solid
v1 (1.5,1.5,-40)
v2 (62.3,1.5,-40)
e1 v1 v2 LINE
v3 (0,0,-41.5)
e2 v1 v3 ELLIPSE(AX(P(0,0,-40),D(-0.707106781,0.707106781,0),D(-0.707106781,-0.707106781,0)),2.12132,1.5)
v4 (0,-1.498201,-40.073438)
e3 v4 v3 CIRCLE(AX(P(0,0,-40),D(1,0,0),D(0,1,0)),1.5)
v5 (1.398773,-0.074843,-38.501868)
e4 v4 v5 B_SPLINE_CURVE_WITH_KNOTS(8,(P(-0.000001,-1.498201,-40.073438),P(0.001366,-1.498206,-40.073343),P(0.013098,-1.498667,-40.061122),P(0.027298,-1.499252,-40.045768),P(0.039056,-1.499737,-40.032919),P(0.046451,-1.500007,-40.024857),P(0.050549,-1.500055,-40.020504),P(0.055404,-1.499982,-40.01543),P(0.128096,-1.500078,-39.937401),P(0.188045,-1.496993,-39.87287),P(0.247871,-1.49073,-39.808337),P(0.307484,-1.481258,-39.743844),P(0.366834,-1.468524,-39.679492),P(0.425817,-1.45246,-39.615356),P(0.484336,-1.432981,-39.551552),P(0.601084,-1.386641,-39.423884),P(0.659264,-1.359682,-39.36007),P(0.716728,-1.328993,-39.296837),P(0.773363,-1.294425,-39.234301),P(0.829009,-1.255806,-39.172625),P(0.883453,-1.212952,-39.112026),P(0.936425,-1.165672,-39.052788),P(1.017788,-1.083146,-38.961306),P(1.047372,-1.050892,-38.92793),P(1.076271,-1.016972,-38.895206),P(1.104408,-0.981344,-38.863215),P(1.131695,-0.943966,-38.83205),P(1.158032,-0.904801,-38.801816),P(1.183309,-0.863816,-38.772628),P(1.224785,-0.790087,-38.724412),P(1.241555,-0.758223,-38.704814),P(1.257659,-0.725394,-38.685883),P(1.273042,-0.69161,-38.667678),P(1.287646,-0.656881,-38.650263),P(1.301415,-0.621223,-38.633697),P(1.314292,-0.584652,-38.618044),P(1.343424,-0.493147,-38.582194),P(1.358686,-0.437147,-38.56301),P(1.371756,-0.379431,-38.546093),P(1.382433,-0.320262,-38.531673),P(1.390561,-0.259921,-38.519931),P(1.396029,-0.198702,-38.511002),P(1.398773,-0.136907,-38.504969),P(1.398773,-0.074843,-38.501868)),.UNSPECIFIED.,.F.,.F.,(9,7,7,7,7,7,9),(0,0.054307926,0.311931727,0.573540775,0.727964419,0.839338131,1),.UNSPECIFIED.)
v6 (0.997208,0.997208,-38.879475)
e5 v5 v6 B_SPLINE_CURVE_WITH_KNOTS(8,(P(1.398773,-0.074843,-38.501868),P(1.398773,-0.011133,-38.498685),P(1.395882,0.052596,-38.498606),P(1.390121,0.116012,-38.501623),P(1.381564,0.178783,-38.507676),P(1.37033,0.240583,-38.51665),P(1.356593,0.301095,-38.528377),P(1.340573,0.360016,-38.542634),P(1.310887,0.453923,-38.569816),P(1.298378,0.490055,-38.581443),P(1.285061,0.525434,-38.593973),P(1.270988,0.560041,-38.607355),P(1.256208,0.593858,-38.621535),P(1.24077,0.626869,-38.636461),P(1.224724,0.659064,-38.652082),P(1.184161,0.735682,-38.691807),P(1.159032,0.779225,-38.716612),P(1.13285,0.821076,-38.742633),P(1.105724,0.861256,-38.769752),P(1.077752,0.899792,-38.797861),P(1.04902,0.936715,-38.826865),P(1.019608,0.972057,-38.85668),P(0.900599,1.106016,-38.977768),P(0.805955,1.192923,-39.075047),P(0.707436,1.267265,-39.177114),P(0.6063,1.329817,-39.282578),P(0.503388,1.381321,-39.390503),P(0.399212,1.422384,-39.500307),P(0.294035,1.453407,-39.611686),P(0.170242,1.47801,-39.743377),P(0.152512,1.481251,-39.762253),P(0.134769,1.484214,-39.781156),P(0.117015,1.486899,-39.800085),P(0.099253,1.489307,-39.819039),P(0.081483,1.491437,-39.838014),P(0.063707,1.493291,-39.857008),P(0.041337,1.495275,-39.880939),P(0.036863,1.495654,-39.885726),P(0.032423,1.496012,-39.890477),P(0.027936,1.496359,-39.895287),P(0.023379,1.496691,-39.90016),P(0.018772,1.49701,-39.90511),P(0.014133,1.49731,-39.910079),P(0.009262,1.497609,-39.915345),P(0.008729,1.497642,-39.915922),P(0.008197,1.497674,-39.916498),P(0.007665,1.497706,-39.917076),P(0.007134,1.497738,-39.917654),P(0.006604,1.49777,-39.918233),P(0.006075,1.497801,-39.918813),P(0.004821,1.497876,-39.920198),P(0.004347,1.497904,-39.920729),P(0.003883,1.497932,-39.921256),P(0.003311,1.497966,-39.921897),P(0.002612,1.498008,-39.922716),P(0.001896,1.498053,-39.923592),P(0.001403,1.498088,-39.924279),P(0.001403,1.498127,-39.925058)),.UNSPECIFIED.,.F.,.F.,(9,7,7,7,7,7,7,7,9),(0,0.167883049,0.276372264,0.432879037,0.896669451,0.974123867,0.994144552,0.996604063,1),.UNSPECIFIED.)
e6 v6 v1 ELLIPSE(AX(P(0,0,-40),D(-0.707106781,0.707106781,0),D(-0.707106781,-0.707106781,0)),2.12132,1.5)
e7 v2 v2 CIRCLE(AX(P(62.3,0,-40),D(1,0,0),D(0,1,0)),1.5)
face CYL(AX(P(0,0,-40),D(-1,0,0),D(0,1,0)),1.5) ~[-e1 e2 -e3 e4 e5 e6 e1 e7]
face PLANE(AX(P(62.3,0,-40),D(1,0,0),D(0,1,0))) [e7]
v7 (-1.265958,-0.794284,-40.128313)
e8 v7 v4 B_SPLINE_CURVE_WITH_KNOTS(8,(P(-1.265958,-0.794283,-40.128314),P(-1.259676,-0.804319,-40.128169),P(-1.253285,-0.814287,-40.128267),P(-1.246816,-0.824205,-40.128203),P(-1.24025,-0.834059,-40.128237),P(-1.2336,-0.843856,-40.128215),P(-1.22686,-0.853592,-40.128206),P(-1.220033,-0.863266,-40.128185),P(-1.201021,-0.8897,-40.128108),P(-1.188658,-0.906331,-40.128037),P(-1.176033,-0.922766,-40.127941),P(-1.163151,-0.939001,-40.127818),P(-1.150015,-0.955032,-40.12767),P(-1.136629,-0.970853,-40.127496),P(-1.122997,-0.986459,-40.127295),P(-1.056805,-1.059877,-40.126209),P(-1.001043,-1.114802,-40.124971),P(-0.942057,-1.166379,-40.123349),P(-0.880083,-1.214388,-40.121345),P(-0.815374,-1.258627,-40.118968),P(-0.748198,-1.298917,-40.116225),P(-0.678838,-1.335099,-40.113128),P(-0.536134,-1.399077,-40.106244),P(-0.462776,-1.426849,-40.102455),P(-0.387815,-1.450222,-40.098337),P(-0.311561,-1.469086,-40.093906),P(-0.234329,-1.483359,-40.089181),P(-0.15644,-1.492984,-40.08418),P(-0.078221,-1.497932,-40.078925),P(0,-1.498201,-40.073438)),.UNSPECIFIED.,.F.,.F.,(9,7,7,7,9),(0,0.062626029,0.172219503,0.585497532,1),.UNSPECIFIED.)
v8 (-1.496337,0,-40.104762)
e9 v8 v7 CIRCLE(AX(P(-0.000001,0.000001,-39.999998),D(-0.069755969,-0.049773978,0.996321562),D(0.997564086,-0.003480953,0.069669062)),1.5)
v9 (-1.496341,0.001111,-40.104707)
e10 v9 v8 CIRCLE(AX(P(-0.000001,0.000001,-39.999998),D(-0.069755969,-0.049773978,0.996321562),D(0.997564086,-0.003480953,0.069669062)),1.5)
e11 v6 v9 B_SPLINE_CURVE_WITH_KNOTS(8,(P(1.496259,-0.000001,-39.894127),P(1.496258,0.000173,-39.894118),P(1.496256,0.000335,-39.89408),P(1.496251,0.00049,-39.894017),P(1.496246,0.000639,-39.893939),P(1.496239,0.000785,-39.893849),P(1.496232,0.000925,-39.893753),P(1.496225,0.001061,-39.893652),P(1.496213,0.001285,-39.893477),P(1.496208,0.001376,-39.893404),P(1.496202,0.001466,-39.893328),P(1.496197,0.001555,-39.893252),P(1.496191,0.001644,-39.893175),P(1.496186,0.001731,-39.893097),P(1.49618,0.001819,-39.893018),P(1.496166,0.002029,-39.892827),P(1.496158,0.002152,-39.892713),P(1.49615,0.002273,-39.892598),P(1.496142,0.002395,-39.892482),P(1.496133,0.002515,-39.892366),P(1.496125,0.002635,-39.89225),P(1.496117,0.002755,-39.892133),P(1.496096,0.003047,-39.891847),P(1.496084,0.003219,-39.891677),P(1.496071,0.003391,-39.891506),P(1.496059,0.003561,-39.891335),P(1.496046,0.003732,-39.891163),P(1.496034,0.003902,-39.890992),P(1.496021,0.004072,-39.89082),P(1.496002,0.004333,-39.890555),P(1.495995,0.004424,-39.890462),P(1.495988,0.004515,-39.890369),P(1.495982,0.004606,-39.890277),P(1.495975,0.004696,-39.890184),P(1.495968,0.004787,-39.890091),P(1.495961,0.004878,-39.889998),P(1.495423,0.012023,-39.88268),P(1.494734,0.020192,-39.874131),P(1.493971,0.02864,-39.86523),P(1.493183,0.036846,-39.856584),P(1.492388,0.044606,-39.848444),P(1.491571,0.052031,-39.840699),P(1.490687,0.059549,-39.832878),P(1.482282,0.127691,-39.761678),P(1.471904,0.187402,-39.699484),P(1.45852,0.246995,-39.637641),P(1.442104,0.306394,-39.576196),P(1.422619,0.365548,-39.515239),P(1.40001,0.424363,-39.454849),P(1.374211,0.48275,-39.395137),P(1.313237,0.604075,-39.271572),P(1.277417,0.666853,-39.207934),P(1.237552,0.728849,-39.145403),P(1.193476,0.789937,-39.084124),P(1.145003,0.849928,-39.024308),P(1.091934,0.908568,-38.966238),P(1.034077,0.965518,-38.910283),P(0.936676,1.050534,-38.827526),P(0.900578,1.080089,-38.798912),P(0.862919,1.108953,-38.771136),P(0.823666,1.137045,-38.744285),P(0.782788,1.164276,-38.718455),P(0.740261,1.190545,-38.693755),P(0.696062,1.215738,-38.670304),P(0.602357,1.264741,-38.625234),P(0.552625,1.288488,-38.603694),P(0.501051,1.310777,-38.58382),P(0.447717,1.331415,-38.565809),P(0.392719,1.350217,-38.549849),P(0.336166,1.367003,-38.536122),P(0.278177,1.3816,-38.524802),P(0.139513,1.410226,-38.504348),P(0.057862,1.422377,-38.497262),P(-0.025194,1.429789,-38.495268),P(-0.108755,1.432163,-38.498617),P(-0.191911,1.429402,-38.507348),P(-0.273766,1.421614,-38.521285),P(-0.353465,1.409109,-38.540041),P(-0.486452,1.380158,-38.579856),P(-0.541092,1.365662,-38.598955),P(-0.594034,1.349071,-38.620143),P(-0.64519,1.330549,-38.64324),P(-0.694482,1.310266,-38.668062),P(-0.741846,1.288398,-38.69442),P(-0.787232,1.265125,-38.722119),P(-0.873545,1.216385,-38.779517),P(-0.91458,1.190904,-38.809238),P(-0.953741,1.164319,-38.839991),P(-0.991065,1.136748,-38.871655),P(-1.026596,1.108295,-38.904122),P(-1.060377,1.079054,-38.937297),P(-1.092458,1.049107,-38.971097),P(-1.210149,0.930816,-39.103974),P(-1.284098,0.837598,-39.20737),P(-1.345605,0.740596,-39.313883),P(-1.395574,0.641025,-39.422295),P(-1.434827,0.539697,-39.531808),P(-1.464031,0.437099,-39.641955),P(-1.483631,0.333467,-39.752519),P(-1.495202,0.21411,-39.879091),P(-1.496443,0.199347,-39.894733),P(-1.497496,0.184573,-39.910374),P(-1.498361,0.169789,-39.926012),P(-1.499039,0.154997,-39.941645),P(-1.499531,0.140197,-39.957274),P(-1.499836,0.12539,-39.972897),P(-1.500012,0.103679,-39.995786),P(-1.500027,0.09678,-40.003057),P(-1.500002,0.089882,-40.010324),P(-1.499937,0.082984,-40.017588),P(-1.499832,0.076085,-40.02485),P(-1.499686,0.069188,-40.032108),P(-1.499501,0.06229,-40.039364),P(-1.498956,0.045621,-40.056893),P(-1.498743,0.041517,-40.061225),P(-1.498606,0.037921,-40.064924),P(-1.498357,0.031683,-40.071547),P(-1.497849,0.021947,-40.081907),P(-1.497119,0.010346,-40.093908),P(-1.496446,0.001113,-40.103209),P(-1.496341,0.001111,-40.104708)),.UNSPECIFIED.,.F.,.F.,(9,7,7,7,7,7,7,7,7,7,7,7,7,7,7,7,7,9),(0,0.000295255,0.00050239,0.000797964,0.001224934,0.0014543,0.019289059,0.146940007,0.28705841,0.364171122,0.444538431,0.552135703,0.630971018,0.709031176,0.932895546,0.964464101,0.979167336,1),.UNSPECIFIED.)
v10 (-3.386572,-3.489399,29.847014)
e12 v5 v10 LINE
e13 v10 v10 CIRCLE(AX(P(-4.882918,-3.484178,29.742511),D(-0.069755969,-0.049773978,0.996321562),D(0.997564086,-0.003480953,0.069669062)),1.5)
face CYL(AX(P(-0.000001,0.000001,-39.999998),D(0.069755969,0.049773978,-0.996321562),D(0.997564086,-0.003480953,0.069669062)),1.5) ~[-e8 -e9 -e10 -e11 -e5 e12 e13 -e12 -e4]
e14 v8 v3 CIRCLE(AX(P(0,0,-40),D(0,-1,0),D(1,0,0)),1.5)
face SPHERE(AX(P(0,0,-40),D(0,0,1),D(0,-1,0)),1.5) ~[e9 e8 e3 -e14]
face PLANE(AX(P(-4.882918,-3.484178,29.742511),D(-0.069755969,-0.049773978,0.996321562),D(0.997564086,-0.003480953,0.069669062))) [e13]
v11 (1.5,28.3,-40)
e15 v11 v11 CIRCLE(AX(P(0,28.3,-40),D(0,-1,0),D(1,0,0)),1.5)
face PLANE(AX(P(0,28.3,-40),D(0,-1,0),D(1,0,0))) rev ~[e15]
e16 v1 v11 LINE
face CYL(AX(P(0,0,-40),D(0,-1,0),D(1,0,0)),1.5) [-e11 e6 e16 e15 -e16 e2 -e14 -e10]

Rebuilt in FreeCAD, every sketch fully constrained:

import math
import FreeCAD as App
import Part
import Sketcher

V = App.Vector

doc = App.newDocument("Part")
body = doc.addObject("PartDesign::Body", "Body")

sketch1 = body.newObject("Sketcher::SketchObject", "Sketch")
sketch1.AttachmentSupport = (doc.getObject("YZ_Plane"), [""])
sketch1.MapMode = "FlatFace"
sketch1.addGeometry(Part.Circle(V(0, -40, 0), V(0, 0, 1), 1.5), False)
sketch1.addConstraint([
    Sketcher.Constraint("PointOnObject", 0, 3, -2),
    Sketcher.Constraint("Diameter", 0, 3.0),
    Sketcher.Constraint("DistanceY", 0, 3, -1, 1, 40.0),
])
pad1 = body.newObject("PartDesign::Pad", "Pad")
pad1.Profile = sketch1
pad1.Length = 62.3

sketch2 = body.newObject("Sketcher::SketchObject", "Sketch001")
sketch2.AttachmentSupport = (doc.getObject("XZ_Plane"), [""])
sketch2.MapMode = "FlatFace"
sketch2.addGeometry(Part.Circle(V(0, -40, 0), V(0, 0, 1), 1.5), False)
sketch2.addConstraint([
    Sketcher.Constraint("PointOnObject", 0, 3, -2),
    Sketcher.Constraint("Diameter", 0, 3.0),
    Sketcher.Constraint("DistanceY", 0, 3, -1, 1, 40.0),
])
pad2 = body.newObject("PartDesign::Pad", "Pad001")
pad2.Profile = sketch2
pad2.Length = 28.3
pad2.Reversed = True

sketch3 = body.newObject("Sketcher::SketchObject", "Sketch002")
sketch3.AttachmentSupport = (doc.getObject("YZ_Plane"), [""])
sketch3.MapMode = "FlatFace"
sketch3.addGeometry([
    Part.LineSegment(V(0, -38.5, 0), V(0, -41.5, 0)),
    Part.ArcOfCircle(Part.Circle(V(0, -40, 0), V(0, 0, 1), 1.5), math.radians(90), math.radians(270)),
], False)
sketch3.addConstraint([
    Sketcher.Constraint("Coincident", 0, 1, 1, 1),
    Sketcher.Constraint("Coincident", 1, 2, 0, 2),
    Sketcher.Constraint("Vertical", 0),
    Sketcher.Constraint("PointOnObject", 1, 3, -2),
    Sketcher.Constraint("PointOnObject", 0, 1, -2),
    Sketcher.Constraint("Radius", 1, 1.5),
    Sketcher.Constraint("DistanceY", 1, 3, -1, 1, 40.0),
])
revolution = body.newObject("PartDesign::Revolution", "Revolution")
revolution.Profile = sketch3
revolution.ReferenceAxis = (sketch3, ["V_Axis"])
revolution.Angle = 90
revolution.Reversed = True

sketch4 = body.newObject("Sketcher::SketchObject", "Sketch003")
sketch4.Placement = App.Placement(V(2.779995, 1.983642, -39.706263), App.Rotation(V(0.997564086, -0.003480953, 0.069669062), V(0.000000442, 0.998754441, 0.04989555), V(-0.069755969, -0.049773978, 0.996321562), "ZXY"))
sketch4.addGeometry(Part.Circle(V(-2.8, -2, 0), V(0, 0, 1), 1.5), False)
sketch4.addConstraint([
    Sketcher.Constraint("Diameter", 0, 3.0),
    Sketcher.Constraint("DistanceX", 0, 3, -1, 1, 2.786783),
    Sketcher.Constraint("DistanceY", 0, 3, -1, 1, 1.995828),
])
pad3 = body.newObject("PartDesign::Pad", "Pad002")
pad3.Profile = sketch4
pad3.Length = 70

doc.recompute()
